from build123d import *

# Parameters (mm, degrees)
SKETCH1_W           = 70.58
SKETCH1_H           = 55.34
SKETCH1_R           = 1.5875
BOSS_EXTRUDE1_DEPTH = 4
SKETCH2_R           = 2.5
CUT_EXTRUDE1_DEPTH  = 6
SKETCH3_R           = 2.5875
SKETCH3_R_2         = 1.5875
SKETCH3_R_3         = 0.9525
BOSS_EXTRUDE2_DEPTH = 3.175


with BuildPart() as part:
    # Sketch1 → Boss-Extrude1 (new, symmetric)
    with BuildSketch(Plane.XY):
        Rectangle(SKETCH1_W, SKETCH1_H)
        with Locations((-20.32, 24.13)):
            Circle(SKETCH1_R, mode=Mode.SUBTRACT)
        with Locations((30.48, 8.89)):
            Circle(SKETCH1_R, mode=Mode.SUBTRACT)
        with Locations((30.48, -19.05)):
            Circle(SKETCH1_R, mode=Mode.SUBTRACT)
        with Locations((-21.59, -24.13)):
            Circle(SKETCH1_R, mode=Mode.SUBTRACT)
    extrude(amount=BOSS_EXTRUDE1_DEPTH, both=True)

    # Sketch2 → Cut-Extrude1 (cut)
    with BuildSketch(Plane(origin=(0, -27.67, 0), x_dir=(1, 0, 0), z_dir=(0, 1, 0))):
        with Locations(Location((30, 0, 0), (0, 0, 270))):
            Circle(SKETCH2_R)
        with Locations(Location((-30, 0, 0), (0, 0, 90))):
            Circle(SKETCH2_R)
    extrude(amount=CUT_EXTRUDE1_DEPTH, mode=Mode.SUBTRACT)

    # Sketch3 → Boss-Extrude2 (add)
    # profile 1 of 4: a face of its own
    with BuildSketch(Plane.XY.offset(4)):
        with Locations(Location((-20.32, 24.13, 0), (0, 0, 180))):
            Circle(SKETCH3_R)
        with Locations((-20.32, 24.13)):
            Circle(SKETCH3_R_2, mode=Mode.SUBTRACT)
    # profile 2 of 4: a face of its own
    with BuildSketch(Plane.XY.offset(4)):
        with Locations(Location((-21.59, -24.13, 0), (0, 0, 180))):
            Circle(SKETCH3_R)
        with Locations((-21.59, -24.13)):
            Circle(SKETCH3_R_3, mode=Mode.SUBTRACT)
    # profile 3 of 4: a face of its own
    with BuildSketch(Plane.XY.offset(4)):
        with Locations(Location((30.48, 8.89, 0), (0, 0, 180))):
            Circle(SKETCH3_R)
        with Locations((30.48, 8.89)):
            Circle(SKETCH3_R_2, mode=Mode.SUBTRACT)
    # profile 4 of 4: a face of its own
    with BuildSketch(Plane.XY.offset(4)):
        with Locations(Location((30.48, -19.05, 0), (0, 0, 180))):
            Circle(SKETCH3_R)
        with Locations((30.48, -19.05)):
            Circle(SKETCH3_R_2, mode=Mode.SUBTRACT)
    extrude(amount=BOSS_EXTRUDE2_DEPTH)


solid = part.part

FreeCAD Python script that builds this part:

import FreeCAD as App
import Part
import Sketcher
from FreeCAD import Vector

doc = App.newDocument("Part")
params = doc.addObject("Spreadsheet::Sheet", "Params")
for row, (alias, value) in enumerate([
    ("sketch1_width", "70.58 mm"),
    ("sketch1_height", "55.34 mm"),
    ("pad1_length", "8 mm"),
    ("sketch2_diameter", "5 mm"),
    ("pocket1_length", "6 mm"),
    ("pad2_length", "3.175 mm"),
], start=1):
    params.set(f"A{row}", alias)
    params.set(f"B{row}", "=" + value)
    params.setAlias(f"B{row}", alias)

body = doc.addObject("PartDesign::Body", "Body")

# Sketch on XY plane
sketch1 = body.newObject("Sketcher::SketchObject", "Sketch")
sketch1.AttachmentSupport = (doc.getObject("XY_Plane"), [""])
sketch1.MapMode = "FlatFace"
sketch1.addGeometry([
    Part.LineSegment(Vector(-35.3, 27.7, 0), Vector(-35.3, -27.7, 0)),  # 0
    Part.LineSegment(Vector(-35.3, -27.7, 0), Vector(35.3, -27.7, 0)),  # 1
    Part.LineSegment(Vector(35.3, -27.7, 0), Vector(35.3, 27.7, 0)),  # 2
    Part.LineSegment(Vector(35.3, 27.7, 0), Vector(-35.3, 27.7, 0)),  # 3
    Part.Circle(Vector(-21.6, -24.1, 0), Vector(0, 0, 1), 1.6),  # 4
    Part.Circle(Vector(30.5, -19.1, 0), Vector(0, 0, 1), 1.6),  # 5
    Part.Circle(Vector(-20.3, 24.1, 0), Vector(0, 0, 1), 1.6),  # 6
    Part.Circle(Vector(30.5, 8.9, 0), Vector(0, 0, 1), 1.6),  # 7
], False)
sketch1.addConstraint([
    Sketcher.Constraint("Coincident", 0, 2, 1, 1),
    Sketcher.Constraint("Coincident", 1, 2, 2, 1),
    Sketcher.Constraint("Coincident", 2, 2, 3, 1),
    Sketcher.Constraint("Coincident", 3, 2, 0, 1),
    Sketcher.Constraint("Vertical", 0),
    Sketcher.Constraint("Horizontal", 1),
    Sketcher.Constraint("Vertical", 2),
    Sketcher.Constraint("Horizontal", 3),
    Sketcher.Constraint("Equal", 4, 5),
    Sketcher.Constraint("Equal", 5, 6),
    Sketcher.Constraint("Equal", 6, 7),
    Sketcher.Constraint("Symmetric", 0, 2, 2, 2, -1, 1),
    Sketcher.Constraint("Vertical", 5, 3, 7, 3),
    Sketcher.Constraint("Diameter", 4, 3.175),
    Sketcher.Constraint("DistanceX", 1, 1, 1, 2, 70.58),
    Sketcher.Constraint("DistanceY", 0, 2, 0, 1, 55.34),
    Sketcher.Constraint("DistanceX", 6, 3, 5, 3, 50.8),
    Sketcher.Constraint("DistanceX", 0, 2, 4, 3, 13.7),
    Sketcher.Constraint("DistanceY", 0, 2, 6, 3, 51.8),
    Sketcher.Constraint("DistanceY", 4, 3, 2, 2, 51.8),
    Sketcher.Constraint("DistanceX", -1, 1, 5, 3, 30.48),
    Sketcher.Constraint("DistanceY", 5, 3, -1, 1, 19.05),
    Sketcher.Constraint("DistanceY", -1, 1, 7, 3, 8.89),
])
sketch1.setExpression("Constraints[14]", "Params.sketch1_width")
sketch1.setExpression("Constraints[15]", "Params.sketch1_height")
pad1 = body.newObject("PartDesign::Pad", "Pad")
pad1.Profile = sketch1
pad1.setExpression("Length", "Params.pad1_length")
pad1.Midplane = True

# Sketch on XZ plane
sketch2 = body.newObject("Sketcher::SketchObject", "Sketch001")
sketch2.AttachmentSupport = (doc.getObject("XZ_Plane"), [""])
sketch2.MapMode = "FlatFace"
sketch2.AttachmentOffset = App.Placement(Vector(0, 0, 27.67), App.Rotation())
sketch2.addGeometry([
    Part.Circle(Vector(30, 0, 0), Vector(0, 0, 1), 2.5),
    Part.Circle(Vector(-30, 0, 0), Vector(0, 0, 1), 2.5),
], False)
sketch2.addConstraint([
    Sketcher.Constraint("Equal", 0, 1),
    Sketcher.Constraint("Symmetric", 0, 3, 1, 3, -1, 1),
    Sketcher.Constraint("PointOnObject", 0, 3, -1),
    Sketcher.Constraint("Diameter", 0, 5.0),
    Sketcher.Constraint("DistanceX", -1, 1, 0, 3, 30.0),
])
sketch2.setExpression("Constraints[3]", "Params.sketch2_diameter")
pocket1 = body.newObject("PartDesign::Pocket", "Pocket")
pocket1.Profile = sketch2
pocket1.setExpression("Length", "Params.pocket1_length")

# Sketch on XY plane
sketch3 = body.newObject("Sketcher::SketchObject", "Sketch002")
sketch3.AttachmentSupport = (doc.getObject("XY_Plane"), [""])
sketch3.MapMode = "FlatFace"
sketch3.AttachmentOffset = App.Placement(Vector(0, 0, 4), App.Rotation())
sketch3.addGeometry([
    Part.Circle(Vector(-20.3, 24.1, 0), Vector(0, 0, 1), 2.6),  # 0
    Part.Circle(Vector(-20.3, 24.1, 0), Vector(0, 0, 1), 1.6),  # 1
    Part.Circle(Vector(-21.6, -24.1, 0), Vector(0, 0, 1), 2.6),  # 2
    Part.Circle(Vector(-21.6, -24.1, 0), Vector(0, 0, 1), 1),  # 3
    Part.Circle(Vector(30.5, 8.9, 0), Vector(0, 0, 1), 2.6),  # 4
    Part.Circle(Vector(30.5, 8.9, 0), Vector(0, 0, 1), 1.6),  # 5
    Part.Circle(Vector(30.5, -19.1, 0), Vector(0, 0, 1), 2.6),  # 6
    Part.Circle(Vector(30.5, -19.1, 0), Vector(0, 0, 1), 1.6),  # 7
], False)
sketch3.addConstraint([
    Sketcher.Constraint("Coincident", 1, 3, 0, 3),
    Sketcher.Constraint("Coincident", 3, 3, 2, 3),
    Sketcher.Constraint("Coincident", 5, 3, 4, 3),
    Sketcher.Constraint("Coincident", 7, 3, 6, 3),
    Sketcher.Constraint("Equal", 0, 2),
    Sketcher.Constraint("Equal", 2, 4),
    Sketcher.Constraint("Equal", 1, 5),
    Sketcher.Constraint("Equal", 4, 6),
    Sketcher.Constraint("Equal", 5, 7),
    Sketcher.Constraint("Vertical", 5, 3, 6, 3),
    Sketcher.Constraint("Diameter", 0, 5.175),
    Sketcher.Constraint("Diameter", 1, 3.175),
    Sketcher.Constraint("Diameter", 3, 1.905),
    Sketcher.Constraint("DistanceX", 0, 3, 4, 3, 50.8),
    Sketcher.Constraint("DistanceX", 0, 3, -1, 1, 20.32),
    Sketcher.Constraint("DistanceY", -1, 1, 0, 3, 24.13),
    Sketcher.Constraint("DistanceX", 2, 3, -1, 1, 21.59),
    Sketcher.Constraint("DistanceY", 2, 3, -1, 1, 24.13),
    Sketcher.Constraint("DistanceY", -1, 1, 4, 3, 8.89),
    Sketcher.Constraint("DistanceY", 6, 3, -1, 1, 19.05),
])
pad2 = body.newObject("PartDesign::Pad", "Pad001")
pad2.Profile = sketch3
pad2.setExpression("Length", "Params.pad2_length")

doc.recompute()
